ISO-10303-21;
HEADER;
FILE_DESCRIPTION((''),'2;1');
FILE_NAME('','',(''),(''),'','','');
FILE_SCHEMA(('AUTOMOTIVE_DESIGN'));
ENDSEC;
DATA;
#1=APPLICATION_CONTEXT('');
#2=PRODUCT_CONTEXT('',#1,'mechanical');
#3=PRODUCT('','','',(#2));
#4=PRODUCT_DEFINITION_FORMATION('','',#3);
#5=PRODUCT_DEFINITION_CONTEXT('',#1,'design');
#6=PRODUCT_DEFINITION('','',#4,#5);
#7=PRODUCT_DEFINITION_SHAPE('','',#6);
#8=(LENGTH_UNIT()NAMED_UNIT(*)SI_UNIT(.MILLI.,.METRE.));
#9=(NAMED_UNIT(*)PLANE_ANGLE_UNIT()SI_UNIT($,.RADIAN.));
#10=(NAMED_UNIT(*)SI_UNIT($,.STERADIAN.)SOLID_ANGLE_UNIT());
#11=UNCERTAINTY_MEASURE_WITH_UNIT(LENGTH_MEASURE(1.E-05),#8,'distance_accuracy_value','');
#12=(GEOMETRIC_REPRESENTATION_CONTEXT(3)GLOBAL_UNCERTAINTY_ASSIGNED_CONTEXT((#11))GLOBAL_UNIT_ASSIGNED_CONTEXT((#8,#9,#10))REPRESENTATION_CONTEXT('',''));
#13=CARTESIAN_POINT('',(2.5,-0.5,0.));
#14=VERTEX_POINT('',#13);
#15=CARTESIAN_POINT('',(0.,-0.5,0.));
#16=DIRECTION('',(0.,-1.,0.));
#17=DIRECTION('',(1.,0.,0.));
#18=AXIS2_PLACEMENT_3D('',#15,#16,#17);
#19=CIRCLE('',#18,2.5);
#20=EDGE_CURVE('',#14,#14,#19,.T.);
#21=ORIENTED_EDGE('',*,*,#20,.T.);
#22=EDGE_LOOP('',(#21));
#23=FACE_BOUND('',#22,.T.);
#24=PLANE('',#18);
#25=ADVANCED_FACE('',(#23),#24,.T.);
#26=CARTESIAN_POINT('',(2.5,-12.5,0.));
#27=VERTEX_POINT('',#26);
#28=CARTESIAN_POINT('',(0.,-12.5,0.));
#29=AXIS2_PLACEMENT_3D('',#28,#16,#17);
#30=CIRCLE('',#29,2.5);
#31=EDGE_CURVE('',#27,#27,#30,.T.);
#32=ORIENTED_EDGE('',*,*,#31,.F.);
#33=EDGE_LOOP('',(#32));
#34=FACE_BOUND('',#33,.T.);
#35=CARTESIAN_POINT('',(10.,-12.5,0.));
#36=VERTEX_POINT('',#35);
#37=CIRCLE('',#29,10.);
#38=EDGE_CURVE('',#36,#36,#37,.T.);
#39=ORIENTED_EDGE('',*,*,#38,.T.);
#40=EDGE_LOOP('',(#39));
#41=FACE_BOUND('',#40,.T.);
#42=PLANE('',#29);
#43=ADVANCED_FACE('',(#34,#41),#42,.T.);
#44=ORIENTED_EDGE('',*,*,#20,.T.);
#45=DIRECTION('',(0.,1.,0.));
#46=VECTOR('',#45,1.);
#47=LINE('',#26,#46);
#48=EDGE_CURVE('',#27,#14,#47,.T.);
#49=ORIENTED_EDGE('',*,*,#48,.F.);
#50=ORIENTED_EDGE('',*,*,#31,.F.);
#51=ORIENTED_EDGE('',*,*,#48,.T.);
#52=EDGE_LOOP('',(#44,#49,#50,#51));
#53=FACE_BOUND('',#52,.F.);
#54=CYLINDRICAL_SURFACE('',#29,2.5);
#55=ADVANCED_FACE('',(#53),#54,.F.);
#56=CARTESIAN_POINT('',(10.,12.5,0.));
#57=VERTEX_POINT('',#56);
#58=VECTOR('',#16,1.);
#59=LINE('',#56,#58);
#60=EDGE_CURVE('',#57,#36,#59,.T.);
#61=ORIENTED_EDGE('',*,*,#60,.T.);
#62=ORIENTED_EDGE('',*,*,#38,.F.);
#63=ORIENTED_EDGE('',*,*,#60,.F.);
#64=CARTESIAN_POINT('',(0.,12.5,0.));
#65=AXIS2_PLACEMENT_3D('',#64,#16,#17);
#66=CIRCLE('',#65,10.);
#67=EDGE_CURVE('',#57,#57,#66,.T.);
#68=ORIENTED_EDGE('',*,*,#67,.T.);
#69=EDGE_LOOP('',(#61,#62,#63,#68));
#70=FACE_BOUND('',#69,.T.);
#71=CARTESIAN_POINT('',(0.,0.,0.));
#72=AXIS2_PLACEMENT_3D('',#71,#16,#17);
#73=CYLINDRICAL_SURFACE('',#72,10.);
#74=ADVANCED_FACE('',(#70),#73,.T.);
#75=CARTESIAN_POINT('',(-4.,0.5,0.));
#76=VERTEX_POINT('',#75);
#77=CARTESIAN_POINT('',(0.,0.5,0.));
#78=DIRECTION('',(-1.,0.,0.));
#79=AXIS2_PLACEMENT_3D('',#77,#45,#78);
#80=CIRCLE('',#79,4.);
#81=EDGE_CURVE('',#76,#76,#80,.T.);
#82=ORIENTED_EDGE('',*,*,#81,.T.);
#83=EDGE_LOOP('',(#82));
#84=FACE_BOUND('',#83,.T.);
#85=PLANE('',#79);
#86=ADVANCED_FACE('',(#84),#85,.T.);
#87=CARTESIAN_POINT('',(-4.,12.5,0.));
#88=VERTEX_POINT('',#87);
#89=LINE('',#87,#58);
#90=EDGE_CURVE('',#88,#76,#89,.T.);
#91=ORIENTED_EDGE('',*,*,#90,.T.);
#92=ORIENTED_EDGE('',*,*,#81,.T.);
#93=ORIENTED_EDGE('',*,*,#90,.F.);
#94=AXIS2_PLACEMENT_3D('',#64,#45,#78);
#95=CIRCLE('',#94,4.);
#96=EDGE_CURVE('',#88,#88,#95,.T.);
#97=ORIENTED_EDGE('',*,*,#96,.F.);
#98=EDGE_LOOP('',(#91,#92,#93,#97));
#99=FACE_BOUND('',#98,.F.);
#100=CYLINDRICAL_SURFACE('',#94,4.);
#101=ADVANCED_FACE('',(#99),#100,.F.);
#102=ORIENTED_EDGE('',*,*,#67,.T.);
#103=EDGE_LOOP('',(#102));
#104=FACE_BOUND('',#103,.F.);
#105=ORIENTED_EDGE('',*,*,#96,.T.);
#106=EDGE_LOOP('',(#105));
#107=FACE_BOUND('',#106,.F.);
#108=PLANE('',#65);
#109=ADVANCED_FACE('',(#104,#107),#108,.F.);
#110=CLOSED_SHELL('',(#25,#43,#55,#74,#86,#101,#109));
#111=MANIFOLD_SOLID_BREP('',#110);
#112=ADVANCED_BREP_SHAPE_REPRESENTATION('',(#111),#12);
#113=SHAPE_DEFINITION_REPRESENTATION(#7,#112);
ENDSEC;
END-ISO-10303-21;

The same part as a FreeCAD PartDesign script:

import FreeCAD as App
import Part
import Sketcher
Q = App.Units.Quantity

doc = App.newDocument("Part")
body = doc.addObject("PartDesign::Body", "Body")

# Sketch on XZ plane
sketch1 = body.newObject("Sketcher::SketchObject", "Sketch")
sketch1.AttachmentSupport = (doc.getObject("XZ_Plane"), [""])
sketch1.MapMode = "FlatFace"
sketch1.addGeometry(Part.Circle(App.Vector(0, 0, 0), App.Vector(0, 0, 1), 10), False)
sketch1.addConstraint([
    Sketcher.Constraint("Coincident", 0, 3, -1, 1),
    Sketcher.Constraint("Diameter", 0, Q("20 mm")),
])
pad1 = body.newObject("PartDesign::Pad", "Pad")
pad1.Profile = sketch1
pad1.Length = 25
pad1.Midplane = True

# Sketch on XZ plane
sketch2 = body.newObject("Sketcher::SketchObject", "Sketch001")
sketch2.AttachmentSupport = (doc.getObject("XZ_Plane"), [""])
sketch2.MapMode = "FlatFace"
sketch2.AttachmentOffset = App.Placement(App.Vector(0, 0, 12.5), App.Rotation())
sketch2.addGeometry(Part.Circle(App.Vector(0, 0, 0), App.Vector(0, 0, 1), 2.5), False)
sketch2.addConstraint([
    Sketcher.Constraint("Coincident", 0, 3, -1, 1),
    Sketcher.Constraint("Diameter", 0, Q("5 mm")),
])
pocket1 = body.newObject("PartDesign::Pocket", "Pocket")
pocket1.Profile = sketch2
pocket1.Length = 12

# Sketch on XZ plane
sketch3 = body.newObject("Sketcher::SketchObject", "Sketch002")
sketch3.AttachmentSupport = (doc.getObject("XZ_Plane"), [""])
sketch3.MapMode = "FlatFace"
sketch3.AttachmentOffset = App.Placement(App.Vector(0, 0, -12.5), App.Rotation())
sketch3.addGeometry(Part.Circle(App.Vector(0, 0, 0), App.Vector(0, 0, 1), 4), False)
sketch3.addConstraint([
    Sketcher.Constraint("Coincident", 0, 3, -1, 1),
    Sketcher.Constraint("Diameter", 0, Q("8 mm")),
])
pocket2 = body.newObject("PartDesign::Pocket", "Pocket001")
pocket2.Profile = sketch3
pocket2.Length = 12
pocket2.Reversed = True

doc.recompute()
